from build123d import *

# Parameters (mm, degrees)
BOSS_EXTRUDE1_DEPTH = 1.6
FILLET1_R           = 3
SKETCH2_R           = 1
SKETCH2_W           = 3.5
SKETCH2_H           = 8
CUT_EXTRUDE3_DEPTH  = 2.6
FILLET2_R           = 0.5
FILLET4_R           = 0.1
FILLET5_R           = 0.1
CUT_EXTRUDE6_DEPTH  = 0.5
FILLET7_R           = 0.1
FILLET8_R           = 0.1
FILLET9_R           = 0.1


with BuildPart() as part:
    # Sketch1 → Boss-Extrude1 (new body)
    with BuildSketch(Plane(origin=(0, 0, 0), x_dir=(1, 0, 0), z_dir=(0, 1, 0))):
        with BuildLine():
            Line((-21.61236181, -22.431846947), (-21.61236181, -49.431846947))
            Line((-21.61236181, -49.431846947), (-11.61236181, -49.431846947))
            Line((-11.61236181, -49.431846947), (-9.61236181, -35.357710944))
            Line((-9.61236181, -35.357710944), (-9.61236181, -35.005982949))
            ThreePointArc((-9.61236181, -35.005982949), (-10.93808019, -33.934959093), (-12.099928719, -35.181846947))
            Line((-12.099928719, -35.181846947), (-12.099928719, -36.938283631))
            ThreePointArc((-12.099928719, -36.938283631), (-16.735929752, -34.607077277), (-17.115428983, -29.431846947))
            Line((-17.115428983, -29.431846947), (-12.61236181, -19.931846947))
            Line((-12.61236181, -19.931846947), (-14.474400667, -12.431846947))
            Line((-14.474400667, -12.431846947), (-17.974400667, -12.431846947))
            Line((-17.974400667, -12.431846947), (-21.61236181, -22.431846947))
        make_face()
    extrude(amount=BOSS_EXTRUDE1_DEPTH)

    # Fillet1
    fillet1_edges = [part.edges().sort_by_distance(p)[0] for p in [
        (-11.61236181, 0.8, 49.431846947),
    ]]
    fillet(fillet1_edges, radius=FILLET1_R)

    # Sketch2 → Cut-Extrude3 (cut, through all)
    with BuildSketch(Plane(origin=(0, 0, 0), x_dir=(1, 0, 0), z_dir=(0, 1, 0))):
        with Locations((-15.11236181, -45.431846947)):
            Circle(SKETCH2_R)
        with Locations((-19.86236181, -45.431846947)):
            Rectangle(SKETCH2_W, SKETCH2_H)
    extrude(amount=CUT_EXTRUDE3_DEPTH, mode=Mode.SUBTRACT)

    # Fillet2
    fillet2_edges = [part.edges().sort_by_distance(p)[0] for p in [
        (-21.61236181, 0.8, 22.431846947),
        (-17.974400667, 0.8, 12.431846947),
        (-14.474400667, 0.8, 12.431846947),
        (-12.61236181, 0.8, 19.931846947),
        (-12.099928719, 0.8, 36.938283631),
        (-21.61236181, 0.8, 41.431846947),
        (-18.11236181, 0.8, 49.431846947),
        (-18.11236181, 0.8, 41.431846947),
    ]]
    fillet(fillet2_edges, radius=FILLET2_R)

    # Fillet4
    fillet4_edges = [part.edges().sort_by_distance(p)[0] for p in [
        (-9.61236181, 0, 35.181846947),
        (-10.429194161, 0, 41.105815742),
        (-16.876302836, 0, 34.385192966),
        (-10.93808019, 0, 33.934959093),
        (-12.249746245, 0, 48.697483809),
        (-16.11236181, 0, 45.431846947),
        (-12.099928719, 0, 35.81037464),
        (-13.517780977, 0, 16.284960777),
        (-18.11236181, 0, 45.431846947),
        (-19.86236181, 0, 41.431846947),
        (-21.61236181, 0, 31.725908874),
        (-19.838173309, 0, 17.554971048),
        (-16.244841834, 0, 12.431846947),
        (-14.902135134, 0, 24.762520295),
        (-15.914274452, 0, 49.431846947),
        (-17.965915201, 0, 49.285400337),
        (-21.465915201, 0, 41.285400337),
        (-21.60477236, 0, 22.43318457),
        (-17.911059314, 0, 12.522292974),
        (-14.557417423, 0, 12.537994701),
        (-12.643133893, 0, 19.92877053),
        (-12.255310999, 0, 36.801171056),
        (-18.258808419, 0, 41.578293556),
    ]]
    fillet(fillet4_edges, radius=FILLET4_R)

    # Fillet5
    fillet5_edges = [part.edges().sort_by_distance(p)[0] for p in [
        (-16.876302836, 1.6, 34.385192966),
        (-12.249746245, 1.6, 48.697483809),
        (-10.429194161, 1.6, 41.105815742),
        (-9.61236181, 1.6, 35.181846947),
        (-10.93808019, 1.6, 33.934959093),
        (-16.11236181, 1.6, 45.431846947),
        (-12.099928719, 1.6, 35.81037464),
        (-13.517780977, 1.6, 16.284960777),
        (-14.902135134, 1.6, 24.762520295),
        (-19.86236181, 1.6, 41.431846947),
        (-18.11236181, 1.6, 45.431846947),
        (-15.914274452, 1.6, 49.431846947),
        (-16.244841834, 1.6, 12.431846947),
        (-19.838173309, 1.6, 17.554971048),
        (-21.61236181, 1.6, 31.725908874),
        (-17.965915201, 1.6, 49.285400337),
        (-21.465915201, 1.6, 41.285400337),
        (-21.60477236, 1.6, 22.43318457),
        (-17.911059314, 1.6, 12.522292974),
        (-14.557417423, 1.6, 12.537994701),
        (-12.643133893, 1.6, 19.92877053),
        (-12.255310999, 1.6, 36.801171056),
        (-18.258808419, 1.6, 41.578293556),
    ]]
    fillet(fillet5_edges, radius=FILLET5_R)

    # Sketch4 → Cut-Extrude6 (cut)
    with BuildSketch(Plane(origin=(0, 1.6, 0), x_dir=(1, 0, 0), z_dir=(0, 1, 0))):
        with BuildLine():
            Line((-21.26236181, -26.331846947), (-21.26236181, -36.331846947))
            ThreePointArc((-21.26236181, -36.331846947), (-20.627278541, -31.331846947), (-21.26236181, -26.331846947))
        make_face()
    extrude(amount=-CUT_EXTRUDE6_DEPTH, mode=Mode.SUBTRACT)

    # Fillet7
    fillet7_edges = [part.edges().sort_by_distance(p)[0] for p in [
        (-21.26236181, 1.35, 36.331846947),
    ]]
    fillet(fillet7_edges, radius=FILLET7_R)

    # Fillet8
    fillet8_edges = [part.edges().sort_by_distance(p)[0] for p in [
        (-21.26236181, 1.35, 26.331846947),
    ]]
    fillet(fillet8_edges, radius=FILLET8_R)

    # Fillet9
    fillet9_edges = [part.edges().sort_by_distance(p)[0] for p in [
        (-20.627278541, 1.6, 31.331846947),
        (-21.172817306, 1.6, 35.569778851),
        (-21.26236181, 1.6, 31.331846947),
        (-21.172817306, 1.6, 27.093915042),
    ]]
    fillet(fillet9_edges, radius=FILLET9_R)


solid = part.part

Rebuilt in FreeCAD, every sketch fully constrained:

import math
import FreeCAD as App
import Part
import Sketcher

V = App.Vector


def edges_at(feature, points):
    """Names of the edges that pass closest to the given points."""
    edges = feature.Shape.Edges
    near = lambda p: min(range(len(edges)), key=lambda i: edges[i].distToShape(Part.Vertex(*p))[0])
    return sorted({f"Edge{near(p) + 1}" for p in points})

doc = App.newDocument("Part")
body = doc.addObject("PartDesign::Body", "Body")

# Sketch on XZ plane
sketch1 = body.newObject("Sketcher::SketchObject", "Sketch")
sketch1.AttachmentSupport = (doc.getObject("XZ_Plane"), [""])
sketch1.MapMode = "FlatFace"
sketch1.addGeometry([
    Part.LineSegment(V(-21.61, 22.43, 0), V(-21.61, 49.43, 0)),  # 0
    Part.LineSegment(V(-21.61, 49.43, 0), V(-11.61, 49.43, 0)),  # 1
    Part.LineSegment(V(-11.61, 49.43, 0), V(-9.61, 35.36, 0)),  # 2
    Part.LineSegment(V(-9.61, 35.36, 0), V(-9.61, 35.01, 0)),  # 3
    Part.ArcOfCircle(Part.Circle(V(-10.85, 35.18, 0), V(0, 0, 1), 1.25), math.radians(180), math.radians(352)),  # 4
    Part.LineSegment(V(-12.1, 35.18, 0), V(-12.1, 36.94, 0)),  # 5
    Part.ArcOfCircle(Part.Circle(V(-12.36, 31.68, 0), V(0, 0, 1), 5.26), math.radians(87), math.radians(205)),  # 6
    Part.LineSegment(V(-17.12, 29.43, 0), V(-12.61, 19.93, 0)),  # 7
    Part.LineSegment(V(-12.61, 19.93, 0), V(-14.47, 12.43, 0)),  # 8
    Part.LineSegment(V(-14.47, 12.43, 0), V(-17.97, 12.43, 0)),  # 9
    Part.LineSegment(V(-17.97, 12.43, 0), V(-21.61, 22.43, 0)),  # 10
], False)
sketch1.addConstraint([
    Sketcher.Constraint("Coincident", 0, 2, 1, 1),
    Sketcher.Constraint("Coincident", 1, 2, 2, 1),
    Sketcher.Constraint("Coincident", 2, 2, 3, 1),
    Sketcher.Constraint("Coincident", 3, 2, 4, 2),
    Sketcher.Constraint("Tangent", 4, 1, 5, 1),
    Sketcher.Constraint("Coincident", 5, 2, 6, 1),
    Sketcher.Constraint("Tangent", 6, 2, 7, 1),
    Sketcher.Constraint("Coincident", 7, 2, 8, 1),
    Sketcher.Constraint("Coincident", 8, 2, 9, 1),
    Sketcher.Constraint("Coincident", 9, 2, 10, 1),
    Sketcher.Constraint("Coincident", 10, 2, 0, 1),
    Sketcher.Constraint("Vertical", 0),
    Sketcher.Constraint("Horizontal", 1),
    Sketcher.Constraint("Vertical", 3),
    Sketcher.Constraint("Vertical", 5),
    Sketcher.Constraint("Horizontal", 9),
    Sketcher.Constraint("DistanceX", 1, 1, 1, 2, 10.0),
    Sketcher.Constraint("DistanceY", 0, 1, 0, 2, 27.0),
    Sketcher.Constraint("Radius", 4, 1.25),
    Sketcher.Constraint("Radius", 6, 5.26),
    Sketcher.Constraint("DistanceX", 9, 2, 9, 1, 3.5),
    Sketcher.Constraint("DistanceX", 1, 2, 2, 2, 2.0),
    Sketcher.Constraint("DistanceX", 7, 2, 3, 2, 3.0),
    Sketcher.Constraint("DistanceY", 8, 2, 6, 2, 17.0),
    Sketcher.Constraint("DistanceY", 10, 2, 6, 2, 7.0),
    Sketcher.Constraint("DistanceY", 7, 2, 6, 2, 9.5),
    Sketcher.Constraint("DistanceY", 4, 3, 0, 2, 14.25),
    Sketcher.Constraint("DistanceX", 0, 2, 6, 3, 9.25),
    Sketcher.Constraint("DistanceX", 8, 2, -1, 1, 14.474401),
    Sketcher.Constraint("DistanceY", 3, 2, 5, 2, 1.932301),
    Sketcher.Constraint("Distance", 2, 14.21553),
    Sketcher.Constraint("Distance", 8, 7.72769),
    Sketcher.Constraint("DistanceY", -1, 1, 2, 2, 35.357711),
])
pad1 = body.newObject("PartDesign::Pad", "Pad")
pad1.Profile = sketch1
pad1.Length = 1.6
pad1.Reversed = True
doc.recompute()

fillet = body.newObject("PartDesign::Fillet", "Fillet")
fillet.Base = (pad1, edges_at(pad1, [(-11.612, 0.8, 49.432)]))
fillet.Radius = 3

# Sketch on XZ plane
sketch2 = body.newObject("Sketcher::SketchObject", "Sketch001")
sketch2.AttachmentSupport = (doc.getObject("XZ_Plane"), [""])
sketch2.MapMode = "FlatFace"
sketch2.addGeometry([
    Part.Circle(V(-15.1, 45.4, 0), V(0, 0, 1), 1),  # 0
    Part.LineSegment(V(-21.6, 41.4, 0), V(-21.6, 49.4, 0)),  # 1
    Part.LineSegment(V(-21.6, 49.4, 0), V(-18.1, 49.4, 0)),  # 2
    Part.LineSegment(V(-18.1, 49.4, 0), V(-18.1, 41.4, 0)),  # 3
    Part.LineSegment(V(-18.1, 41.4, 0), V(-21.6, 41.4, 0)),  # 4
], False)
sketch2.addConstraint([
    Sketcher.Constraint("Coincident", 1, 2, 2, 1),
    Sketcher.Constraint("Coincident", 2, 2, 3, 1),
    Sketcher.Constraint("Coincident", 3, 2, 4, 1),
    Sketcher.Constraint("Coincident", 4, 2, 1, 1),
    Sketcher.Constraint("Vertical", 1),
    Sketcher.Constraint("Horizontal", 2),
    Sketcher.Constraint("Vertical", 3),
    Sketcher.Constraint("Horizontal", 4),
    Sketcher.Constraint("Diameter", 0, 2.0),
    Sketcher.Constraint("DistanceY", 1, 1, 1, 2, 8.0),
    Sketcher.Constraint("DistanceX", 2, 1, 2, 2, 3.5),
    Sketcher.Constraint("DistanceY", 0, 3, 1, 2, 4.0),
    Sketcher.Constraint("DistanceX", 2, 2, 0, 3, 3.0),
    Sketcher.Constraint("DistanceX", 0, 3, -1, 1, 15.112362),
    Sketcher.Constraint("DistanceY", -1, 1, 0, 3, 45.431847),
])
pocket1 = body.newObject("PartDesign::Pocket", "Pocket")
pocket1.Profile = sketch2
pocket1.Type = "ThroughAll"
doc.recompute()

fillet2 = body.newObject("PartDesign::Fillet", "Fillet001")
fillet2.Base = (pocket1, edges_at(pocket1, [
    (-21.612, 0.8, 22.432),
    (-17.974, 0.8, 12.432),
    (-14.474, 0.8, 12.432),
    (-12.612, 0.8, 19.932),
    (-12.1, 0.8, 36.938),
    (-21.612, 0.8, 41.432),
    (-18.112, 0.8, 49.432),
    (-18.112, 0.8, 41.432),
]))
fillet2.Radius = 0.5
doc.recompute()

fillet3 = body.newObject("PartDesign::Fillet", "Fillet002")
fillet3.Base = (fillet2, edges_at(fillet2, [
    (-9.612, 0, 35.182),
    (-10.429, 0, 41.106),
    (-16.876, 0, 34.385),
    (-10.938, 0, 33.935),
    (-12.25, 0, 48.697),
    (-16.112, 0, 45.432),
    (-12.1, 0, 35.81),
    (-13.518, 0, 16.285),
    (-18.112, 0, 45.432),
    (-19.862, 0, 41.432),
    (-21.612, 0, 31.726),
    (-19.838, 0, 17.555),
    (-16.245, 0, 12.432),
    (-14.902, 0, 24.763),
    (-15.914, 0, 49.432),
    (-17.966, 0, 49.285),
    (-21.466, 0, 41.285),
    (-21.605, 0, 22.433),
    (-17.911, 0, 12.522),
    (-14.557, 0, 12.538),
    (-12.643, 0, 19.929),
    (-12.255, 0, 36.801),
    (-18.259, 0, 41.578),
]))
fillet3.Radius = 0.1
doc.recompute()

fillet4 = body.newObject("PartDesign::Fillet", "Fillet003")
fillet4.Base = (fillet3, edges_at(fillet3, [
    (-16.876, 1.6, 34.385),
    (-12.25, 1.6, 48.697),
    (-10.429, 1.6, 41.106),
    (-9.612, 1.6, 35.182),
    (-10.938, 1.6, 33.935),
    (-16.112, 1.6, 45.432),
    (-12.1, 1.6, 35.81),
    (-13.518, 1.6, 16.285),
    (-14.902, 1.6, 24.763),
    (-19.862, 1.6, 41.432),
    (-18.112, 1.6, 45.432),
    (-15.914, 1.6, 49.432),
    (-16.245, 1.6, 12.432),
    (-19.838, 1.6, 17.555),
    (-21.612, 1.6, 31.726),
    (-17.966, 1.6, 49.285),
    (-21.466, 1.6, 41.285),
    (-21.605, 1.6, 22.433),
    (-17.911, 1.6, 12.522),
    (-14.557, 1.6, 12.538),
    (-12.643, 1.6, 19.929),
    (-12.255, 1.6, 36.801),
    (-18.259, 1.6, 41.578),
]))
fillet4.Radius = 0.1

# Sketch on XZ plane
sketch3 = body.newObject("Sketcher::SketchObject", "Sketch002")
sketch3.AttachmentSupport = (doc.getObject("XZ_Plane"), [""])
sketch3.MapMode = "FlatFace"
sketch3.AttachmentOffset = App.Placement(V(0, 0, -1.6), App.Rotation())
sketch3.addGeometry([
    Part.LineSegment(V(-21, 26, 0), V(-21, 36, 0)),
    Part.ArcOfCircle(Part.Circle(V(-41, 31, 0), V(0, 0, 1), 20), math.radians(-14), math.radians(14)),
], False)
sketch3.addConstraint([
    Sketcher.Constraint("Coincident", 0, 1, 1, 1),
    Sketcher.Constraint("Coincident", 1, 2, 0, 2),
    Sketcher.Constraint("Vertical", 0),
    Sketcher.Constraint("Radius", 1, 20.0),
    Sketcher.Constraint("DistanceY", 0, 1, 0, 2, 10.0),
    Sketcher.Constraint("DistanceX", 1, 3, -1, 1, 40.627279),
    Sketcher.Constraint("DistanceY", -1, 1, 1, 3, 31.331847),
])
pocket2 = body.newObject("PartDesign::Pocket", "Pocket001")
pocket2.Profile = sketch3
pocket2.Length = 0.5
pocket2.Reversed = True
doc.recompute()

fillet5 = body.newObject("PartDesign::Fillet", "Fillet004")
fillet5.Base = (pocket2, edges_at(pocket2, [(-21.262, 1.35, 36.332)]))
fillet5.Radius = 0.1
doc.recompute()

fillet6 = body.newObject("PartDesign::Fillet", "Fillet005")
fillet6.Base = (fillet5, edges_at(fillet5, [(-21.262, 1.35, 26.332)]))
fillet6.Radius = 0.1
doc.recompute()

fillet7 = body.newObject("PartDesign::Fillet", "Fillet006")
fillet7.Base = (fillet6, edges_at(fillet6, [
    (-20.627, 1.6, 31.332),
    (-21.173, 1.6, 35.57),
    (-21.262, 1.6, 31.332),
    (-21.173, 1.6, 27.094),
]))
fillet7.Radius = 0.1

doc.recompute()
